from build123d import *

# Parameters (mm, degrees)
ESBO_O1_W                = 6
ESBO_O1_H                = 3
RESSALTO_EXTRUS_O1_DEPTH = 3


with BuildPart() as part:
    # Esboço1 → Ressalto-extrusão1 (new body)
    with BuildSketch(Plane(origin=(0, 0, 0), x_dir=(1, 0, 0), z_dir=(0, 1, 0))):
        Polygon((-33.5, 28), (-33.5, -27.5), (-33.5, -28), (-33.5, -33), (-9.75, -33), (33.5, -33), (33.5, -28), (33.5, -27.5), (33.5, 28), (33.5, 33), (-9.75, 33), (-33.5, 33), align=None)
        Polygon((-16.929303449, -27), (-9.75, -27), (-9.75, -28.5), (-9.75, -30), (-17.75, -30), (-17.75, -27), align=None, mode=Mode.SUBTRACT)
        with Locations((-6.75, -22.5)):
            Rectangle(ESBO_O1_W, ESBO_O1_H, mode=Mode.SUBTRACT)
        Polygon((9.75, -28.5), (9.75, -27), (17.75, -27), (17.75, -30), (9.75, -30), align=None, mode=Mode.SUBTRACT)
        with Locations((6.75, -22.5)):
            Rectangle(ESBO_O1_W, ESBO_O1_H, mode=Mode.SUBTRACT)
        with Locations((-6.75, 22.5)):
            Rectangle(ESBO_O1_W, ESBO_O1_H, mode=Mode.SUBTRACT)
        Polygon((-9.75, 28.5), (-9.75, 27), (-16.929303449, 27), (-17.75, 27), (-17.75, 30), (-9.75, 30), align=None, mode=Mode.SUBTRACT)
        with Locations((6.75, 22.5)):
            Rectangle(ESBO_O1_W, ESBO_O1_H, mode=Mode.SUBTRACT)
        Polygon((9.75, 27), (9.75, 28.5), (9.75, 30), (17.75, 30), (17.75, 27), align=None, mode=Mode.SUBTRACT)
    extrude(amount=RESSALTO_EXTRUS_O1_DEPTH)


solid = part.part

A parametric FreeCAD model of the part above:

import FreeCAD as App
import Part
import Sketcher

V = App.Vector
Q = App.Units.Quantity

doc = App.newDocument("Part")
params = doc.addObject("Spreadsheet::Sheet", "Params")
for row, (alias, value) in enumerate([
    ("sketch1_width", "67 mm"),
    ("sketch1_width2", "8 mm"),
    ("sketch1_width3", "6 mm"),
    ("sketch1_height", "66 mm"),
    ("sketch1_height2", "3 mm"),
    ("pad1_length", "3 mm"),
], start=1):
    params.set(f"A{row}", alias)
    params.set(f"B{row}", "=" + value)
    params.setAlias(f"B{row}", alias)

body = doc.addObject("PartDesign::Body", "Body")

# Sketch on XZ plane
sketch1 = body.newObject("Sketcher::SketchObject", "Sketch")
sketch1.AttachmentSupport = (doc.getObject("XZ_Plane"), [""])
sketch1.MapMode = "FlatFace"
sketch1.addGeometry(Part.LineSegment(V(-33.5, 33, 0), V(33.5, 33, 0)), False)
sketch1.addGeometry(Part.LineSegment(V(33.5, 33, 0), V(33.5, -33, 0)), False)
sketch1.addGeometry(Part.LineSegment(V(33.5, -33, 0), V(-33.5, -33, 0)), False)
sketch1.addGeometry(Part.LineSegment(V(-33.5, -33, 0), V(-33.5, 33, 0)), False)
sketch1.addGeometry(Part.LineSegment(V(-17.8, 27, 0), V(-9.8, 27, 0)), False)
sketch1.addGeometry(Part.LineSegment(V(-9.8, 27, 0), V(-9.8, 30, 0)), False)
sketch1.addGeometry(Part.LineSegment(V(-9.8, 30, 0), V(-17.8, 30, 0)), False)
sketch1.addGeometry(Part.LineSegment(V(-17.8, 30, 0), V(-17.8, 27, 0)), False)
sketch1.addGeometry(Part.LineSegment(V(-3.8, 24, 0), V(-9.8, 24, 0)), False)
sketch1.addGeometry(Part.LineSegment(V(-9.8, 24, 0), V(-9.8, 21, 0)), False)
sketch1.addGeometry(Part.LineSegment(V(-9.8, 21, 0), V(-3.8, 21, 0)), False)
sketch1.addGeometry(Part.LineSegment(V(-3.8, 21, 0), V(-3.8, 24, 0)), False)
sketch1.addGeometry(Part.LineSegment(V(9.8, 24, 0), V(3.8, 24, 0)), False)
sketch1.addGeometry(Part.LineSegment(V(3.8, 24, 0), V(3.8, 21, 0)), False)
sketch1.addGeometry(Part.LineSegment(V(3.8, 21, 0), V(9.8, 21, 0)), False)
sketch1.addGeometry(Part.LineSegment(V(9.8, 21, 0), V(9.8, 24, 0)), False)
sketch1.addGeometry(Part.LineSegment(V(9.8, 30, 0), V(9.8, 27, 0)), False)
sketch1.addGeometry(Part.LineSegment(V(9.8, 27, 0), V(17.8, 27, 0)), False)
sketch1.addGeometry(Part.LineSegment(V(17.8, 27, 0), V(17.8, 30, 0)), False)
sketch1.addGeometry(Part.LineSegment(V(17.8, 30, 0), V(9.8, 30, 0)), False)
sketch1.addGeometry(Part.LineSegment(V(-9.8, -30, 0), V(-9.8, -27, 0)), False)
sketch1.addGeometry(Part.LineSegment(V(-9.8, -27, 0), V(-17.8, -27, 0)), False)
sketch1.addGeometry(Part.LineSegment(V(-17.8, -27, 0), V(-17.8, -30, 0)), False)
sketch1.addGeometry(Part.LineSegment(V(-17.8, -30, 0), V(-9.8, -30, 0)), False)
sketch1.addGeometry(Part.LineSegment(V(-3.8, -21, 0), V(-9.8, -21, 0)), False)
sketch1.addGeometry(Part.LineSegment(V(-9.8, -21, 0), V(-9.8, -24, 0)), False)
sketch1.addGeometry(Part.LineSegment(V(-9.8, -24, 0), V(-3.8, -24, 0)), False)
sketch1.addGeometry(Part.LineSegment(V(-3.8, -24, 0), V(-3.8, -21, 0)), False)
sketch1.addGeometry(Part.LineSegment(V(9.8, -21, 0), V(3.8, -21, 0)), False)
sketch1.addGeometry(Part.LineSegment(V(3.8, -21, 0), V(3.8, -24, 0)), False)
sketch1.addGeometry(Part.LineSegment(V(3.8, -24, 0), V(9.8, -24, 0)), False)
sketch1.addGeometry(Part.LineSegment(V(9.8, -24, 0), V(9.8, -21, 0)), False)
sketch1.addGeometry(Part.LineSegment(V(17.8, -27, 0), V(9.8, -27, 0)), False)
sketch1.addGeometry(Part.LineSegment(V(9.8, -27, 0), V(9.8, -30, 0)), False)
sketch1.addGeometry(Part.LineSegment(V(9.8, -30, 0), V(17.8, -30, 0)), False)
sketch1.addGeometry(Part.LineSegment(V(17.8, -30, 0), V(17.8, -27, 0)), False)
sketch1.addConstraint(Sketcher.Constraint("Coincident", 0, 2, 1, 1))
sketch1.addConstraint(Sketcher.Constraint("Coincident", 1, 2, 2, 1))
sketch1.addConstraint(Sketcher.Constraint("Coincident", 2, 2, 3, 1))
sketch1.addConstraint(Sketcher.Constraint("Coincident", 3, 2, 0, 1))
sketch1.addConstraint(Sketcher.Constraint("Coincident", 4, 2, 5, 1))
sketch1.addConstraint(Sketcher.Constraint("Coincident", 5, 2, 6, 1))
sketch1.addConstraint(Sketcher.Constraint("Coincident", 6, 2, 7, 1))
sketch1.addConstraint(Sketcher.Constraint("Coincident", 7, 2, 4, 1))
sketch1.addConstraint(Sketcher.Constraint("Coincident", 8, 2, 9, 1))
sketch1.addConstraint(Sketcher.Constraint("Coincident", 9, 2, 10, 1))
sketch1.addConstraint(Sketcher.Constraint("Coincident", 10, 2, 11, 1))
sketch1.addConstraint(Sketcher.Constraint("Coincident", 11, 2, 8, 1))
sketch1.addConstraint(Sketcher.Constraint("Coincident", 12, 2, 13, 1))
sketch1.addConstraint(Sketcher.Constraint("Coincident", 13, 2, 14, 1))
sketch1.addConstraint(Sketcher.Constraint("Coincident", 14, 2, 15, 1))
sketch1.addConstraint(Sketcher.Constraint("Coincident", 15, 2, 12, 1))
sketch1.addConstraint(Sketcher.Constraint("Coincident", 16, 2, 17, 1))
sketch1.addConstraint(Sketcher.Constraint("Coincident", 17, 2, 18, 1))
sketch1.addConstraint(Sketcher.Constraint("Coincident", 18, 2, 19, 1))
sketch1.addConstraint(Sketcher.Constraint("Coincident", 19, 2, 16, 1))
sketch1.addConstraint(Sketcher.Constraint("Coincident", 20, 2, 21, 1))
sketch1.addConstraint(Sketcher.Constraint("Coincident", 21, 2, 22, 1))
sketch1.addConstraint(Sketcher.Constraint("Coincident", 22, 2, 23, 1))
sketch1.addConstraint(Sketcher.Constraint("Coincident", 23, 2, 20, 1))
sketch1.addConstraint(Sketcher.Constraint("Coincident", 24, 2, 25, 1))
sketch1.addConstraint(Sketcher.Constraint("Coincident", 25, 2, 26, 1))
sketch1.addConstraint(Sketcher.Constraint("Coincident", 26, 2, 27, 1))
sketch1.addConstraint(Sketcher.Constraint("Coincident", 27, 2, 24, 1))
sketch1.addConstraint(Sketcher.Constraint("Coincident", 28, 2, 29, 1))
sketch1.addConstraint(Sketcher.Constraint("Coincident", 29, 2, 30, 1))
sketch1.addConstraint(Sketcher.Constraint("Coincident", 30, 2, 31, 1))
sketch1.addConstraint(Sketcher.Constraint("Coincident", 31, 2, 28, 1))
sketch1.addConstraint(Sketcher.Constraint("Coincident", 32, 2, 33, 1))
sketch1.addConstraint(Sketcher.Constraint("Coincident", 33, 2, 34, 1))
sketch1.addConstraint(Sketcher.Constraint("Coincident", 34, 2, 35, 1))
sketch1.addConstraint(Sketcher.Constraint("Coincident", 35, 2, 32, 1))
sketch1.addConstraint(Sketcher.Constraint("Horizontal", 0))
sketch1.addConstraint(Sketcher.Constraint("Vertical", 1))
sketch1.addConstraint(Sketcher.Constraint("Horizontal", 2))
sketch1.addConstraint(Sketcher.Constraint("Vertical", 3))
sketch1.addConstraint(Sketcher.Constraint("Horizontal", 4))
sketch1.addConstraint(Sketcher.Constraint("Vertical", 5))
sketch1.addConstraint(Sketcher.Constraint("Horizontal", 6))
sketch1.addConstraint(Sketcher.Constraint("Vertical", 7))
sketch1.addConstraint(Sketcher.Constraint("Horizontal", 8))
sketch1.addConstraint(Sketcher.Constraint("Vertical", 9))
sketch1.addConstraint(Sketcher.Constraint("Horizontal", 10))
sketch1.addConstraint(Sketcher.Constraint("Vertical", 11))
sketch1.addConstraint(Sketcher.Constraint("Horizontal", 12))
sketch1.addConstraint(Sketcher.Constraint("Vertical", 13))
sketch1.addConstraint(Sketcher.Constraint("Horizontal", 14))
sketch1.addConstraint(Sketcher.Constraint("Vertical", 15))
sketch1.addConstraint(Sketcher.Constraint("Vertical", 16))
sketch1.addConstraint(Sketcher.Constraint("Horizontal", 17))
sketch1.addConstraint(Sketcher.Constraint("Vertical", 18))
sketch1.addConstraint(Sketcher.Constraint("Horizontal", 19))
sketch1.addConstraint(Sketcher.Constraint("Vertical", 20))
sketch1.addConstraint(Sketcher.Constraint("Horizontal", 21))
sketch1.addConstraint(Sketcher.Constraint("Vertical", 22))
sketch1.addConstraint(Sketcher.Constraint("Horizontal", 23))
sketch1.addConstraint(Sketcher.Constraint("Horizontal", 24))
sketch1.addConstraint(Sketcher.Constraint("Vertical", 25))
sketch1.addConstraint(Sketcher.Constraint("Horizontal", 26))
sketch1.addConstraint(Sketcher.Constraint("Vertical", 27))
sketch1.addConstraint(Sketcher.Constraint("Horizontal", 28))
sketch1.addConstraint(Sketcher.Constraint("Vertical", 29))
sketch1.addConstraint(Sketcher.Constraint("Horizontal", 30))
sketch1.addConstraint(Sketcher.Constraint("Vertical", 31))
sketch1.addConstraint(Sketcher.Constraint("Horizontal", 32))
sketch1.addConstraint(Sketcher.Constraint("Vertical", 33))
sketch1.addConstraint(Sketcher.Constraint("Horizontal", 34))
sketch1.addConstraint(Sketcher.Constraint("Vertical", 35))
sketch1.addConstraint(Sketcher.Constraint("Symmetric", 0, 2, 2, 2, -1, 1))
sketch1.addConstraint(Sketcher.Constraint("Symmetric", 16, 2, 20, 2, -1, 1))
sketch1.addConstraint(Sketcher.Constraint("Symmetric", 18, 2, 22, 2, -1, 1))
sketch1.addConstraint(Sketcher.Constraint("Symmetric", 14, 2, 24, 2, -1, 1))
sketch1.addConstraint(Sketcher.Constraint("Symmetric", 12, 2, 26, 2, -1, 1))
sketch1.addConstraint(Sketcher.Constraint("Symmetric", 10, 2, 28, 2, -1, 1))
sketch1.addConstraint(Sketcher.Constraint("Symmetric", 8, 2, 30, 2, -1, 1))
sketch1.addConstraint(Sketcher.Constraint("Symmetric", 4, 2, 32, 2, -1, 1))
sketch1.addConstraint(Sketcher.Constraint("Symmetric", 6, 2, 34, 2, -1, 1))
sketch1.addConstraint(Sketcher.Constraint("Symmetric", 11, 2, 12, 2, -2))
sketch1.addConstraint(Sketcher.Constraint("Symmetric", 9, 2, 14, 2, -2))
sketch1.addConstraint(Sketcher.Constraint("Symmetric", 4, 2, 16, 2, -2))
sketch1.addConstraint(Sketcher.Constraint("Symmetric", 6, 2, 18, 2, -2))
sketch1.addConstraint(Sketcher.Constraint("Vertical", 5, 2, 8, 2))
sketch1.addConstraint(Sketcher.Constraint("Equal", 7, 9))
sketch1.addConstraint(Sketcher.Constraint("DistanceX", 0, 1, 0, 2, Q("67 mm")))
sketch1.addConstraint(Sketcher.Constraint("DistanceX", 4, 1, 4, 2, Q("8 mm")))
sketch1.addConstraint(Sketcher.Constraint("DistanceX", 8, 2, 8, 1, Q("6 mm")))
sketch1.addConstraint(Sketcher.Constraint("DistanceY", 1, 2, 1, 1, Q("66 mm")))
sketch1.addConstraint(Sketcher.Constraint("DistanceY", 5, 1, 5, 2, Q("3 mm")))
sketch1.addConstraint(Sketcher.Constraint("DistanceY", -1, 1, 4, 2, Q("27 mm")))
sketch1.addConstraint(Sketcher.Constraint("DistanceY", -1, 1, 8, 2, Q("24 mm")))
sketch1.addConstraint(Sketcher.Constraint("DistanceX", 11, 2, 12, 2, Q("7.5 mm")))
sketch1.setExpression("Constraints[87]", "Params.sketch1_width")
sketch1.setExpression("Constraints[88]", "Params.sketch1_width2")
sketch1.setExpression("Constraints[89]", "Params.sketch1_width3")
sketch1.setExpression("Constraints[90]", "Params.sketch1_height")
sketch1.setExpression("Constraints[91]", "Params.sketch1_height2")
pad1 = body.newObject("PartDesign::Pad", "Pad")
pad1.Profile = sketch1
pad1.setExpression("Length", "Params.pad1_length")
pad1.Reversed = True

doc.recompute()
